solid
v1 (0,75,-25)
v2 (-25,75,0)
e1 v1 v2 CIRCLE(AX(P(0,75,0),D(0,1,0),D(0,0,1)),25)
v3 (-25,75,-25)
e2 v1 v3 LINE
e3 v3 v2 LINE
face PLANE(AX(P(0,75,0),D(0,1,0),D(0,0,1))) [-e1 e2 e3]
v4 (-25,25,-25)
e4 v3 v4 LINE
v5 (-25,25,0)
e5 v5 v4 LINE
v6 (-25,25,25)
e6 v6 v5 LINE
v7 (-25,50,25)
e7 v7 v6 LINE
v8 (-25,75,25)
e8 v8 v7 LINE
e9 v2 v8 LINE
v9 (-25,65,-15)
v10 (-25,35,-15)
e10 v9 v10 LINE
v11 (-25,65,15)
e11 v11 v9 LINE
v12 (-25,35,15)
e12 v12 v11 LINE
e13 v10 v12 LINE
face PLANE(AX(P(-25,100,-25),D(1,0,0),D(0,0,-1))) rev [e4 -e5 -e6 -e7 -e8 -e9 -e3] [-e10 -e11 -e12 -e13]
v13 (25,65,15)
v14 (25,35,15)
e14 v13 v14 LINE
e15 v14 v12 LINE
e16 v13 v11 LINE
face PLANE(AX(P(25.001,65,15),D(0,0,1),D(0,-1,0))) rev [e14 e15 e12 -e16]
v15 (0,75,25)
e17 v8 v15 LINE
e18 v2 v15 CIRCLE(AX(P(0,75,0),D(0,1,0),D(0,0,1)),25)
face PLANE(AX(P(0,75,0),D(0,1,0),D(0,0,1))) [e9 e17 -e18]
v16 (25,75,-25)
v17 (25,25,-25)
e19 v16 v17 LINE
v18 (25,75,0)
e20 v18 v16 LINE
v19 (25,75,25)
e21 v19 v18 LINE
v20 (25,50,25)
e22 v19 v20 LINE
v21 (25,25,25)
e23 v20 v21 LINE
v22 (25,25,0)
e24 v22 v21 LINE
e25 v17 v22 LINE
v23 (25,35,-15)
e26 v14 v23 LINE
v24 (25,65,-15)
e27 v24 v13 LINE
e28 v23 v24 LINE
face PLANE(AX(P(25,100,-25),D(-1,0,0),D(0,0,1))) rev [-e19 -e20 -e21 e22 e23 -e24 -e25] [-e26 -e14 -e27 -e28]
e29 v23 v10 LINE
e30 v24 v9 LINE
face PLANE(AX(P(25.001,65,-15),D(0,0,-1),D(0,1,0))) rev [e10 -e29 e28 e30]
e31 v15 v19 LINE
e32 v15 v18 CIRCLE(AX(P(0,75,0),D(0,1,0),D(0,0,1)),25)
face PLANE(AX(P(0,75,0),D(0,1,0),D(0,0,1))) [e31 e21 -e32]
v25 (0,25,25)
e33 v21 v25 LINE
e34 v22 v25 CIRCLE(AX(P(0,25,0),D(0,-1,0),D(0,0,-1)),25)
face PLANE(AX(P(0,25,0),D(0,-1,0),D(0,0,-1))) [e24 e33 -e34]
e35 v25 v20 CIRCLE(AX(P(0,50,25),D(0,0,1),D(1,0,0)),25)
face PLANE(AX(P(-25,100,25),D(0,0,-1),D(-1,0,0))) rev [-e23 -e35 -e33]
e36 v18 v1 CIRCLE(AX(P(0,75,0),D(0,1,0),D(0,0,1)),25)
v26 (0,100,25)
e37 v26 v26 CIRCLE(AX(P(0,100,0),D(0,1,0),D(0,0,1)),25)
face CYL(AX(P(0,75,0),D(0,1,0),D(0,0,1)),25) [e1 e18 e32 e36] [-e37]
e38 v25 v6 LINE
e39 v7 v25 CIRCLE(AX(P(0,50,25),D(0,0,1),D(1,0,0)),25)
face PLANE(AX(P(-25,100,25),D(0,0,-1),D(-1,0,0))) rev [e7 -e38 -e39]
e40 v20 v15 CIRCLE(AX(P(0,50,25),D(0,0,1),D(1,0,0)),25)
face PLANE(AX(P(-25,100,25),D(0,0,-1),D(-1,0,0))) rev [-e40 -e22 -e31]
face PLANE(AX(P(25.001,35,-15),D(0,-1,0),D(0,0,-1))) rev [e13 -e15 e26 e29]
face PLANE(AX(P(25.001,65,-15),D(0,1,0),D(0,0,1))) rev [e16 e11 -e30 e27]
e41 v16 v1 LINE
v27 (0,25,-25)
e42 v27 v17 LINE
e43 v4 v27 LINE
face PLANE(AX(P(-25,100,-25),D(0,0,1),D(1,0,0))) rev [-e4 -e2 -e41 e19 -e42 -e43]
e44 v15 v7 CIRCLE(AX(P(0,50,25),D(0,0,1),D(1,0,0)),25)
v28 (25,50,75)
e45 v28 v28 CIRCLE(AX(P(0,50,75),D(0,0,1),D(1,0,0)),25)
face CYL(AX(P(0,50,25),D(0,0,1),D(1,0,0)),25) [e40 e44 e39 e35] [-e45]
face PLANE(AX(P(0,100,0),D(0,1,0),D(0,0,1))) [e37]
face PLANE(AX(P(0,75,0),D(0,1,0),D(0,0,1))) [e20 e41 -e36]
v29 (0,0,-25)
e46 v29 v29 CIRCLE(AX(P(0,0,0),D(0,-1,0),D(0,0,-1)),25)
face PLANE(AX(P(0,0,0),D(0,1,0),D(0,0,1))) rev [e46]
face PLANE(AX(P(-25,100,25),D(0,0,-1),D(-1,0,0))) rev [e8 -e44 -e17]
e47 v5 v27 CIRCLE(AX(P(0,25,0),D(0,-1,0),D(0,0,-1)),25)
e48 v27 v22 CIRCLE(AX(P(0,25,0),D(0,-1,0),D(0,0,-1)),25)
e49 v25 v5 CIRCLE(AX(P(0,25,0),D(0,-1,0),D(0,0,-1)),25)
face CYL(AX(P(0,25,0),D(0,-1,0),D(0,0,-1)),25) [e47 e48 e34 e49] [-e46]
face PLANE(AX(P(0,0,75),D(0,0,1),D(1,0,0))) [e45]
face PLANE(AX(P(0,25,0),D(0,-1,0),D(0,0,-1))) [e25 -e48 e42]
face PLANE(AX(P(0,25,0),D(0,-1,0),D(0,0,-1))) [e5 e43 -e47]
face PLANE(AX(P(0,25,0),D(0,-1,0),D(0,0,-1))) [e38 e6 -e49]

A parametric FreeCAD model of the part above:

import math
import FreeCAD as App
import Part
import Sketcher

V = App.Vector

doc = App.newDocument("Part")
body = doc.addObject("PartDesign::Body", "Body")

# Sketch on XZ plane
sketch1 = body.newObject("Sketcher::SketchObject", "Sketch")
sketch1.AttachmentSupport = (doc.getObject("XZ_Plane"), [""])
sketch1.MapMode = "FlatFace"
sketch1.addGeometry([
    Part.LineSegment(V(-25, -25, 0), V(-25, 25, 0)),
    Part.LineSegment(V(-25, 25, 0), V(25, 25, 0)),
    Part.LineSegment(V(25, 25, 0), V(25, -25, 0)),
    Part.LineSegment(V(25, -25, 0), V(-25, -25, 0)),
], False)
sketch1.addConstraint([
    Sketcher.Constraint("Coincident", 0, 2, 1, 1),
    Sketcher.Constraint("Coincident", 1, 2, 2, 1),
    Sketcher.Constraint("Coincident", 2, 2, 3, 1),
    Sketcher.Constraint("Coincident", 3, 2, 0, 1),
    Sketcher.Constraint("Vertical", 0),
    Sketcher.Constraint("Horizontal", 1),
    Sketcher.Constraint("Vertical", 2),
    Sketcher.Constraint("Horizontal", 3),
    Sketcher.Constraint("Symmetric", 0, 2, 2, 2, -1, 1),
    Sketcher.Constraint("Equal", 3, 0),
    Sketcher.Constraint("DistanceX", 1, 1, 1, 2, 50.0),
])
pad1 = body.newObject("PartDesign::Pad", "Pad")
pad1.Profile = sketch1
pad1.Length = 100
pad1.Reversed = True

# Sketch on XY plane
sketch2 = body.newObject("Sketcher::SketchObject", "Sketch001")
sketch2.AttachmentSupport = (doc.getObject("XY_Plane"), [""])
sketch2.MapMode = "FlatFace"
sketch2.AttachmentOffset = App.Placement(V(0, 0, 25), App.Rotation())
sketch2.addGeometry([
    Part.LineSegment(V(-25, 75, 0), V(-25, 25, 0)),
    Part.LineSegment(V(-25, 25, 0), V(25, 25, 0)),
    Part.LineSegment(V(25, 25, 0), V(25, 75, 0)),
    Part.LineSegment(V(25, 75, 0), V(-25, 75, 0)),
], False)
sketch2.addConstraint([
    Sketcher.Constraint("Coincident", 0, 2, 1, 1),
    Sketcher.Constraint("Coincident", 1, 2, 2, 1),
    Sketcher.Constraint("Coincident", 2, 2, 3, 1),
    Sketcher.Constraint("Coincident", 3, 2, 0, 1),
    Sketcher.Constraint("Vertical", 0),
    Sketcher.Constraint("Horizontal", 1),
    Sketcher.Constraint("Vertical", 2),
    Sketcher.Constraint("Horizontal", 3),
    Sketcher.Constraint("Equal", 3, 0),
    Sketcher.Constraint("DistanceX", 1, 1, 1, 2, 50.0),
    Sketcher.Constraint("DistanceX", 0, 2, -1, 1, 25.0),
    Sketcher.Constraint("DistanceY", -1, 1, 0, 2, 25.0),
])
pad2 = body.newObject("PartDesign::Pad", "Pad001")
pad2.Profile = sketch2
pad2.Length = 50

# Sketch on XY plane
sketch3 = body.newObject("Sketcher::SketchObject", "Sketch002")
sketch3.AttachmentSupport = (doc.getObject("XY_Plane"), [""])
sketch3.MapMode = "FlatFace"
sketch3.AttachmentOffset = App.Placement(V(0, 0, 75), App.Rotation())
sketch3.addGeometry([
    Part.LineSegment(V(0, 75, 0), V(-25, 75, 0)),  # 0
    Part.LineSegment(V(-25, 75, 0), V(-25, 50, 0)),  # 1
    Part.ArcOfCircle(Part.Circle(V(0, 50, 0), V(0, 0, 1), 25), math.radians(90), math.radians(180)),  # 2
    Part.LineSegment(V(25, 75, 0), V(0, 75, 0)),  # 3
    Part.ArcOfCircle(Part.Circle(V(0, 50, 0), V(0, 0, 1), 25), math.radians(0), math.radians(90)),  # 4
    Part.LineSegment(V(25, 50, 0), V(25, 75, 0)),  # 5
    Part.LineSegment(V(25, 25, 0), V(25, 50, 0)),  # 6
    Part.ArcOfCircle(Part.Circle(V(0, 50, 0), V(0, 0, 1), 25), math.radians(-90), math.radians(0)),  # 7
    Part.LineSegment(V(0, 25, 0), V(25, 25, 0)),  # 8
    Part.ArcOfCircle(Part.Circle(V(0, 50, 0), V(0, 0, 1), 25), math.radians(-180), math.radians(-90)),  # 9
    Part.LineSegment(V(-25, 50, 0), V(-25, 25, 0)),  # 10
    Part.LineSegment(V(-25, 25, 0), V(0, 25, 0)),  # 11
], False)
sketch3.addConstraint([
    Sketcher.Constraint("Coincident", 0, 2, 1, 1),
    Sketcher.Constraint("Tangent", 1, 2, 2, 2),
    Sketcher.Constraint("Tangent", 2, 1, 0, 1),
    Sketcher.Constraint("Tangent", 3, 2, 4, 2),
    Sketcher.Constraint("Tangent", 4, 1, 5, 1),
    Sketcher.Constraint("Coincident", 5, 2, 3, 1),
    Sketcher.Constraint("Tangent", 6, 2, 7, 2),
    Sketcher.Constraint("Tangent", 7, 1, 8, 1),
    Sketcher.Constraint("Coincident", 8, 2, 6, 1),
    Sketcher.Constraint("Tangent", 9, 1, 10, 1),
    Sketcher.Constraint("Coincident", 10, 2, 11, 1),
    Sketcher.Constraint("Tangent", 11, 2, 9, 2),
    Sketcher.Constraint("Horizontal", 0),
    Sketcher.Constraint("Vertical", 1),
    Sketcher.Constraint("Horizontal", 3),
    Sketcher.Constraint("Vertical", 5),
    Sketcher.Constraint("Vertical", 6),
    Sketcher.Constraint("Horizontal", 8),
    Sketcher.Constraint("Vertical", 10),
    Sketcher.Constraint("Horizontal", 11),
    Sketcher.Constraint("Coincident", 4, 3, 2, 3),
    Sketcher.Constraint("Coincident", 7, 3, 2, 3),
    Sketcher.Constraint("Coincident", 9, 3, 2, 3),
    Sketcher.Constraint("Equal", 2, 4),
    Sketcher.Constraint("Equal", 4, 7),
    Sketcher.Constraint("Equal", 7, 9),
    Sketcher.Constraint("PointOnObject", 2, 3, -2),
    Sketcher.Constraint("Radius", 2, 25.0),
    Sketcher.Constraint("DistanceY", -1, 1, 2, 3, 50.0),
])
pocket1 = body.newObject("PartDesign::Pocket", "Pocket")
pocket1.Profile = sketch3
pocket1.Length = 50

# Sketch on XZ plane
sketch4 = body.newObject("Sketcher::SketchObject", "Sketch003")
sketch4.AttachmentSupport = (doc.getObject("XZ_Plane"), [""])
sketch4.MapMode = "FlatFace"
sketch4.AttachmentOffset = App.Placement(V(0, 0, -100), App.Rotation())
sketch4.addGeometry([
    Part.ArcOfCircle(Part.Circle(V(0, 0, 0), V(0, 0, 1), 25), math.radians(90), math.radians(180)),  # 0
    Part.LineSegment(V(-25, 0, 0), V(-25, 25, 0)),  # 1
    Part.LineSegment(V(-25, 25, 0), V(0, 25, 0)),  # 2
    Part.LineSegment(V(0, -25, 0), V(-25, -25, 0)),  # 3
    Part.LineSegment(V(-25, -25, 0), V(-25, 0, 0)),  # 4
    Part.ArcOfCircle(Part.Circle(V(0, 0, 0), V(0, 0, 1), 25), math.radians(-180), math.radians(-90)),  # 5
    Part.LineSegment(V(25, -25, 0), V(0, -25, 0)),  # 6
    Part.ArcOfCircle(Part.Circle(V(0, 0, 0), V(0, 0, 1), 25), math.radians(-90), math.radians(0)),  # 7
    Part.LineSegment(V(25, 0, 0), V(25, -25, 0)),  # 8
    Part.LineSegment(V(25, 25, 0), V(25, 0, 0)),  # 9
    Part.ArcOfCircle(Part.Circle(V(0, 0, 0), V(0, 0, 1), 25), math.radians(0), math.radians(90)),  # 10
    Part.LineSegment(V(0, 25, 0), V(25, 25, 0)),  # 11
], False)
sketch4.addConstraint([
    Sketcher.Constraint("Tangent", 0, 2, 1, 1),
    Sketcher.Constraint("Coincident", 1, 2, 2, 1),
    Sketcher.Constraint("Tangent", 2, 2, 0, 1),
    Sketcher.Constraint("Coincident", 3, 2, 4, 1),
    Sketcher.Constraint("Tangent", 4, 2, 5, 1),
    Sketcher.Constraint("Tangent", 5, 2, 3, 1),
    Sketcher.Constraint("Tangent", 6, 2, 7, 1),
    Sketcher.Constraint("Tangent", 7, 2, 8, 1),
    Sketcher.Constraint("Coincident", 8, 2, 6, 1),
    Sketcher.Constraint("Tangent", 9, 2, 10, 1),
    Sketcher.Constraint("Tangent", 10, 2, 11, 1),
    Sketcher.Constraint("Coincident", 11, 2, 9, 1),
    Sketcher.Constraint("Vertical", 1),
    Sketcher.Constraint("Horizontal", 2),
    Sketcher.Constraint("Horizontal", 3),
    Sketcher.Constraint("Vertical", 4),
    Sketcher.Constraint("Horizontal", 6),
    Sketcher.Constraint("Vertical", 8),
    Sketcher.Constraint("Vertical", 9),
    Sketcher.Constraint("Horizontal", 11),
    Sketcher.Constraint("Coincident", 0, 3, -1, 1),
    Sketcher.Constraint("Coincident", 5, 3, -1, 1),
    Sketcher.Constraint("Coincident", 7, 3, -1, 1),
    Sketcher.Constraint("Coincident", 10, 3, -1, 1),
    Sketcher.Constraint("Equal", 0, 5),
    Sketcher.Constraint("Equal", 5, 7),
    Sketcher.Constraint("Equal", 7, 10),
    Sketcher.Constraint("Radius", 0, 25.0),
])
pocket2 = body.newObject("PartDesign::Pocket", "Pocket001")
pocket2.Profile = sketch4
pocket2.Length = 25
pocket2.Reversed = True

# Sketch on XZ plane
sketch5 = body.newObject("Sketcher::SketchObject", "Sketch004")
sketch5.AttachmentSupport = (doc.getObject("XZ_Plane"), [""])
sketch5.MapMode = "FlatFace"
sketch5.addGeometry([
    Part.LineSegment(V(0, 25, 0), V(-25, 25, 0)),  # 0
    Part.LineSegment(V(-25, 25, 0), V(-25, 0, 0)),  # 1
    Part.ArcOfCircle(Part.Circle(V(0, 0, 0), V(0, 0, 1), 25), math.radians(90), math.radians(180)),  # 2
    Part.LineSegment(V(25, 25, 0), V(0, 25, 0)),  # 3
    Part.ArcOfCircle(Part.Circle(V(0, 0, 0), V(0, 0, 1), 25), math.radians(0), math.radians(90)),  # 4
    Part.LineSegment(V(25, 0, 0), V(25, 25, 0)),  # 5
    Part.LineSegment(V(25, -25, 0), V(25, 0, 0)),  # 6
    Part.ArcOfCircle(Part.Circle(V(0, 0, 0), V(0, 0, 1), 25), math.radians(-90), math.radians(0)),  # 7
    Part.LineSegment(V(0, -25, 0), V(25, -25, 0)),  # 8
    Part.ArcOfCircle(Part.Circle(V(0, 0, 0), V(0, 0, 1), 25), math.radians(180), math.radians(270)),  # 9
    Part.LineSegment(V(-25, 0, 0), V(-25, -25, 0)),  # 10
    Part.LineSegment(V(-25, -25, 0), V(0, -25, 0)),  # 11
], False)
sketch5.addConstraint([
    Sketcher.Constraint("Coincident", 0, 2, 1, 1),
    Sketcher.Constraint("Tangent", 1, 2, 2, 2),
    Sketcher.Constraint("Tangent", 2, 1, 0, 1),
    Sketcher.Constraint("Tangent", 3, 2, 4, 2),
    Sketcher.Constraint("Tangent", 4, 1, 5, 1),
    Sketcher.Constraint("Coincident", 5, 2, 3, 1),
    Sketcher.Constraint("Tangent", 6, 2, 7, 2),
    Sketcher.Constraint("Tangent", 7, 1, 8, 1),
    Sketcher.Constraint("Coincident", 8, 2, 6, 1),
    Sketcher.Constraint("Tangent", 9, 1, 10, 1),
    Sketcher.Constraint("Coincident", 10, 2, 11, 1),
    Sketcher.Constraint("Tangent", 11, 2, 9, 2),
    Sketcher.Constraint("Horizontal", 0),
    Sketcher.Constraint("Vertical", 1),
    Sketcher.Constraint("Horizontal", 3),
    Sketcher.Constraint("Vertical", 5),
    Sketcher.Constraint("Vertical", 6),
    Sketcher.Constraint("Horizontal", 8),
    Sketcher.Constraint("Vertical", 10),
    Sketcher.Constraint("Horizontal", 11),
    Sketcher.Constraint("Coincident", 2, 3, -1, 1),
    Sketcher.Constraint("Coincident", 4, 3, -1, 1),
    Sketcher.Constraint("Coincident", 7, 3, -1, 1),
    Sketcher.Constraint("Coincident", 9, 3, -1, 1),
    Sketcher.Constraint("Equal", 2, 4),
    Sketcher.Constraint("Equal", 4, 7),
    Sketcher.Constraint("Equal", 7, 9),
    Sketcher.Constraint("Radius", 2, 25.0),
])
pocket3 = body.newObject("PartDesign::Pocket", "Pocket002")
pocket3.Profile = sketch5
pocket3.Length = 25

# Sketch on YZ plane
sketch6 = body.newObject("Sketcher::SketchObject", "Sketch005")
sketch6.AttachmentSupport = (doc.getObject("YZ_Plane"), [""])
sketch6.MapMode = "FlatFace"
sketch6.AttachmentOffset = App.Placement(V(0, 0, -25), App.Rotation())
sketch6.addGeometry([
    Part.LineSegment(V(65, -15, 0), V(35, -15, 0)),
    Part.LineSegment(V(35, -15, 0), V(35, 15, 0)),
    Part.LineSegment(V(35, 15, 0), V(65, 15, 0)),
    Part.LineSegment(V(65, 15, 0), V(65, -15, 0)),
], False)
sketch6.addConstraint([
    Sketcher.Constraint("Coincident", 0, 2, 1, 1),
    Sketcher.Constraint("Coincident", 1, 2, 2, 1),
    Sketcher.Constraint("Coincident", 2, 2, 3, 1),
    Sketcher.Constraint("Coincident", 3, 2, 0, 1),
    Sketcher.Constraint("Horizontal", 0),
    Sketcher.Constraint("Vertical", 1),
    Sketcher.Constraint("Horizontal", 2),
    Sketcher.Constraint("Vertical", 3),
    Sketcher.Constraint("Equal", 2, 1),
    Sketcher.Constraint("DistanceX", 0, 2, 0, 1, 30.0),
    Sketcher.Constraint("DistanceX", -1, 1, 0, 2, 35.0),
    Sketcher.Constraint("DistanceY", 0, 2, -1, 1, 15.0),
])
pocket4 = body.newObject("PartDesign::Pocket", "Pocket003")
pocket4.Profile = sketch6
pocket4.Type = "UpToFirst"
pocket4.Reversed = True

doc.recompute()
